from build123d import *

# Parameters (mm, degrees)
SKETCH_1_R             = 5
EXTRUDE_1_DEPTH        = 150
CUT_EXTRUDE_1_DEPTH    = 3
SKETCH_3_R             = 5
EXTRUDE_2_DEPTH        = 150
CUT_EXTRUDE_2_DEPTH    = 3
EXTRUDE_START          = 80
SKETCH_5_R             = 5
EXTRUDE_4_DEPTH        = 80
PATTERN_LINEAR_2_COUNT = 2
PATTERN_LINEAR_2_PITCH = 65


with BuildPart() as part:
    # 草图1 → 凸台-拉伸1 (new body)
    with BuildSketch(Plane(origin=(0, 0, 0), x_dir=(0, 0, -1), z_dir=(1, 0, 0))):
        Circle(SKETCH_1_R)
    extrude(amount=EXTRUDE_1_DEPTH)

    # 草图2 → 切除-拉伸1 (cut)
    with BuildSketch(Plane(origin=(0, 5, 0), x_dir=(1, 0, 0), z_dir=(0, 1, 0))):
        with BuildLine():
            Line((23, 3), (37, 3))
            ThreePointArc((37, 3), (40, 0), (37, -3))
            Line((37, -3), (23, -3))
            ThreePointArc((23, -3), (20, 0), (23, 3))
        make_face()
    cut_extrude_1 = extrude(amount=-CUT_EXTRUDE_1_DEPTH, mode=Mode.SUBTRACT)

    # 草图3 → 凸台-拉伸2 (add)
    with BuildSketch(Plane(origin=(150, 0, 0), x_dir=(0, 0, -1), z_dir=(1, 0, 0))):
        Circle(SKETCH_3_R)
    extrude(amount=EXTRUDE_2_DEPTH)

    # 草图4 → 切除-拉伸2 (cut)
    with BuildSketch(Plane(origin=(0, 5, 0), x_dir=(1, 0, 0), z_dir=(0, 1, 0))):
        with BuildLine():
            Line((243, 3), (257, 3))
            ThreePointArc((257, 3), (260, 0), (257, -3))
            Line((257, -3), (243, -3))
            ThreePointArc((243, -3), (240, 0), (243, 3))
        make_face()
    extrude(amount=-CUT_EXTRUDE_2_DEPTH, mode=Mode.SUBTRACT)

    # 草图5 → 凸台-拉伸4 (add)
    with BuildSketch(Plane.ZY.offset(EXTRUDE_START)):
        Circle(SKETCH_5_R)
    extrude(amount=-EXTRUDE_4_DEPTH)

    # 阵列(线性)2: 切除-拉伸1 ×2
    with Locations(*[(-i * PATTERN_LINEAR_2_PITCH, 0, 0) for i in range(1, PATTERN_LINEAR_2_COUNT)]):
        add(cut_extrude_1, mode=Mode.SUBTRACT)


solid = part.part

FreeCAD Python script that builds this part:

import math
import FreeCAD as App
import Part
import Sketcher

doc = App.newDocument("Part")
params = doc.addObject("Spreadsheet::Sheet", "Params")
for row, (alias, value) in enumerate([
    ("sketch1_diameter", "10 mm"),
    ("pad1_length", "150 mm"),
    ("sketch2_radius", "3 mm"),
    ("sketch2_width", "14 mm"),
    ("pocket1_length", "3 mm"),
    ("sketch3_diameter", "10 mm"),
    ("pad2_length", "150 mm"),
    ("sketch4_radius", "3 mm"),
    ("sketch4_width", "14 mm"),
    ("pocket2_length", "3 mm"),
    ("sketch5_diameter", "10 mm"),
    ("pad3_length", "80 mm"),
    ("linearpattern_pitch", "65 mm"),
], start=1):
    params.set(f"A{row}", alias)
    params.set(f"B{row}", "=" + value)
    params.setAlias(f"B{row}", alias)

body = doc.addObject("PartDesign::Body", "Body")

# Sketch on YZ plane
sketch1 = doc.addObject("Sketcher::SketchObject", "Sketch")
body.addObject(sketch1)
sketch1.AttachmentSupport = (doc.YZ_Plane, [""])
sketch1.MapMode = "FlatFace"
sketch1.addGeometry(Part.Circle(App.Vector(0, 0, 0), App.Vector(0, 0, 1), 5), False)
sketch1.addConstraint([
    Sketcher.Constraint("Coincident", 0, 3, -1, 1),
    Sketcher.Constraint("Diameter", 0, 10.0),
])
sketch1.setExpression("Constraints[1]", "Params.sketch1_diameter")
pad1 = doc.addObject("PartDesign::Pad", "Pad")
body.addObject(pad1)
pad1.Profile = sketch1
pad1.setExpression("Length", "Params.pad1_length")

# Sketch on XZ plane
sketch2 = doc.addObject("Sketcher::SketchObject", "Sketch001")
body.addObject(sketch2)
sketch2.AttachmentSupport = (doc.XZ_Plane, [""])
sketch2.MapMode = "FlatFace"
sketch2.AttachmentOffset = App.Placement(App.Vector(0, 0, -5), App.Rotation())
sketch2.addGeometry([
    Part.LineSegment(App.Vector(37, -3, 0), App.Vector(23, -3, 0)),
    Part.ArcOfCircle(Part.Circle(App.Vector(23, 0, 0), App.Vector(0, 0, 1), 3), math.radians(90), math.radians(270)),
    Part.LineSegment(App.Vector(23, 3, 0), App.Vector(37, 3, 0)),
    Part.ArcOfCircle(Part.Circle(App.Vector(37, 0, 0), App.Vector(0, 0, 1), 3), math.radians(-90), math.radians(90)),
], False)
sketch2.addConstraint([
    Sketcher.Constraint("Tangent", 0, 2, 1, 2),
    Sketcher.Constraint("Tangent", 1, 1, 2, 1),
    Sketcher.Constraint("Tangent", 2, 2, 3, 2),
    Sketcher.Constraint("Tangent", 3, 1, 0, 1),
    Sketcher.Constraint("Horizontal", 0),
    Sketcher.Constraint("Horizontal", 2),
    Sketcher.Constraint("PointOnObject", 1, 3, -1),
    Sketcher.Constraint("Radius", 1, 3.0),
    Sketcher.Constraint("DistanceX", 0, 2, 0, 1, 14.0),
    Sketcher.Constraint("DistanceX", -1, 1, 1, 3, 23.0),
])
sketch2.setExpression("Constraints[7]", "Params.sketch2_radius")
sketch2.setExpression("Constraints[8]", "Params.sketch2_width")
pocket1 = doc.addObject("PartDesign::Pocket", "Pocket")
body.addObject(pocket1)
pocket1.Profile = sketch2
pocket1.setExpression("Length", "Params.pocket1_length")
pocket1.Reversed = True

# Sketch on YZ plane
sketch3 = doc.addObject("Sketcher::SketchObject", "Sketch002")
body.addObject(sketch3)
sketch3.AttachmentSupport = (doc.YZ_Plane, [""])
sketch3.MapMode = "FlatFace"
sketch3.AttachmentOffset = App.Placement(App.Vector(0, 0, 150), App.Rotation())
sketch3.addGeometry(Part.Circle(App.Vector(0, 0, 0), App.Vector(0, 0, 1), 5), False)
sketch3.addConstraint([
    Sketcher.Constraint("Coincident", 0, 3, -1, 1),
    Sketcher.Constraint("Diameter", 0, 10.0),
])
sketch3.setExpression("Constraints[1]", "Params.sketch3_diameter")
pad2 = doc.addObject("PartDesign::Pad", "Pad001")
body.addObject(pad2)
pad2.Profile = sketch3
pad2.setExpression("Length", "Params.pad2_length")

# Sketch on XZ plane
sketch4 = doc.addObject("Sketcher::SketchObject", "Sketch003")
body.addObject(sketch4)
sketch4.AttachmentSupport = (doc.XZ_Plane, [""])
sketch4.MapMode = "FlatFace"
sketch4.AttachmentOffset = App.Placement(App.Vector(0, 0, -5), App.Rotation())
sketch4.addGeometry([
    Part.LineSegment(App.Vector(257, -3, 0), App.Vector(243, -3, 0)),
    Part.ArcOfCircle(Part.Circle(App.Vector(243, 0, 0), App.Vector(0, 0, 1), 3), math.radians(90), math.radians(270)),
    Part.LineSegment(App.Vector(243, 3, 0), App.Vector(257, 3, 0)),
    Part.ArcOfCircle(Part.Circle(App.Vector(257, 0, 0), App.Vector(0, 0, 1), 3), math.radians(-90), math.radians(90)),
], False)
sketch4.addConstraint([
    Sketcher.Constraint("Tangent", 0, 2, 1, 2),
    Sketcher.Constraint("Tangent", 1, 1, 2, 1),
    Sketcher.Constraint("Tangent", 2, 2, 3, 2),
    Sketcher.Constraint("Tangent", 3, 1, 0, 1),
    Sketcher.Constraint("Horizontal", 0),
    Sketcher.Constraint("Horizontal", 2),
    Sketcher.Constraint("PointOnObject", 1, 3, -1),
    Sketcher.Constraint("Radius", 1, 3.0),
    Sketcher.Constraint("DistanceX", 0, 2, 0, 1, 14.0),
    Sketcher.Constraint("DistanceX", -1, 1, 1, 3, 243.0),
])
sketch4.setExpression("Constraints[7]", "Params.sketch4_radius")
sketch4.setExpression("Constraints[8]", "Params.sketch4_width")
pocket2 = doc.addObject("PartDesign::Pocket", "Pocket001")
body.addObject(pocket2)
pocket2.Profile = sketch4
pocket2.setExpression("Length", "Params.pocket2_length")
pocket2.Reversed = True

# Sketch on YZ plane
sketch5 = doc.addObject("Sketcher::SketchObject", "Sketch004")
body.addObject(sketch5)
sketch5.AttachmentSupport = (doc.YZ_Plane, [""])
sketch5.MapMode = "FlatFace"
sketch5.AttachmentOffset = App.Placement(App.Vector(0, 0, -80), App.Rotation())
sketch5.addGeometry(Part.Circle(App.Vector(0, 0, 0), App.Vector(0, 0, 1), 5), False)
sketch5.addConstraint([
    Sketcher.Constraint("Coincident", 0, 3, -1, 1),
    Sketcher.Constraint("Diameter", 0, 10.0),
])
sketch5.setExpression("Constraints[1]", "Params.sketch5_diameter")
pad3 = doc.addObject("PartDesign::Pad", "Pad002")
body.addObject(pad3)
pad3.Profile = sketch5
pad3.setExpression("Length", "Params.pad3_length")
doc.recompute()

linearpattern = doc.addObject("PartDesign::LinearPattern", "LinearPattern")
body.addObject(linearpattern)
linearpattern.Originals = [pocket1]
linearpattern.Direction = (doc.X_Axis, [""])
linearpattern.Mode = "offset"
linearpattern.setExpression("Offset", "Params.linearpattern_pitch")
linearpattern.Occurrences = 2
linearpattern.Reversed = True
body.Tip = linearpattern

doc.recompute()
